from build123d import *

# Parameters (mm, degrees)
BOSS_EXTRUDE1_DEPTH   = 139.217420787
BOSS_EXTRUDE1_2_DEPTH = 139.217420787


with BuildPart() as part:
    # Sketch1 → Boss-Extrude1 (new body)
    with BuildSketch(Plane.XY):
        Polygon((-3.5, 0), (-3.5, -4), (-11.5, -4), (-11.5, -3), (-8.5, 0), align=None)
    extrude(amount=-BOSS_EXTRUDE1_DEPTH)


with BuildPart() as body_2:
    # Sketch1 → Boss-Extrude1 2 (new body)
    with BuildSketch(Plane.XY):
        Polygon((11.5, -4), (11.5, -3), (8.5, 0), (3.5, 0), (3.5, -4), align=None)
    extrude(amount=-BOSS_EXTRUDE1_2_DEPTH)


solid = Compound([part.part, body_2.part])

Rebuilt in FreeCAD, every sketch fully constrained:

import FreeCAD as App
import Part
import Sketcher
Q = App.Units.Quantity

doc = App.newDocument("Part")
params = doc.addObject("Spreadsheet::Sheet", "Params")
for row, (alias, value) in enumerate([
    ("sketch1_width", "5 mm"),
    ("sketch1_width2", "8 mm"),
    ("sketch1_height", "4 mm"),
    ("sketch1_height2", "1 mm"),
    ("pad1_length", "139.217421 mm"),
    ("sketch2_width", "5 mm"),
    ("sketch2_width2", "8 mm"),
    ("sketch2_height", "1 mm"),
    ("sketch2_height2", "4 mm"),
    ("pad2_length", "139.217421 mm"),
], start=1):
    params.set(f"A{row}", alias)
    params.set(f"B{row}", "=" + value)
    params.setAlias(f"B{row}", alias)

body = doc.addObject("PartDesign::Body", "Body")

# Sketch on XY plane
sketch1 = doc.addObject("Sketcher::SketchObject", "Sketch")
body.addObject(sketch1)
sketch1.AttachmentSupport = (doc.XY_Plane, [""])
sketch1.MapMode = "FlatFace"
sketch1.addGeometry([
    Part.LineSegment(App.Vector(-3.5, -4, 0), App.Vector(-3.5, 0, 0)),  # 0
    Part.LineSegment(App.Vector(-3.5, 0, 0), App.Vector(-8.5, 0, 0)),  # 1
    Part.LineSegment(App.Vector(-8.5, 0, 0), App.Vector(-11.5, -3, 0)),  # 2
    Part.LineSegment(App.Vector(-11.5, -3, 0), App.Vector(-11.5, -4, 0)),  # 3
    Part.LineSegment(App.Vector(-11.5, -4, 0), App.Vector(-3.5, -4, 0)),  # 4
], False)
sketch1.addConstraint([
    Sketcher.Constraint("Coincident", 0, 2, 1, 1),
    Sketcher.Constraint("Coincident", 1, 2, 2, 1),
    Sketcher.Constraint("Coincident", 2, 2, 3, 1),
    Sketcher.Constraint("Coincident", 3, 2, 4, 1),
    Sketcher.Constraint("Coincident", 4, 2, 0, 1),
    Sketcher.Constraint("Vertical", 0),
    Sketcher.Constraint("Horizontal", 1),
    Sketcher.Constraint("Vertical", 3),
    Sketcher.Constraint("Horizontal", 4),
    Sketcher.Constraint("PointOnObject", 0, 2, -1),
    Sketcher.Constraint("DistanceX", 1, 2, 1, 1, Q("5 mm")),
    Sketcher.Constraint("DistanceX", 4, 1, 4, 2, Q("8 mm")),
    Sketcher.Constraint("DistanceY", 0, 1, 0, 2, Q("4 mm")),
    Sketcher.Constraint("DistanceY", 3, 2, 3, 1, Q("1 mm")),
    Sketcher.Constraint("DistanceX", 0, 2, -1, 1, Q("3.5 mm")),
])
sketch1.setExpression("Constraints[10]", "Params.sketch1_width")
sketch1.setExpression("Constraints[11]", "Params.sketch1_width2")
sketch1.setExpression("Constraints[12]", "Params.sketch1_height")
sketch1.setExpression("Constraints[13]", "Params.sketch1_height2")
pad1 = doc.addObject("PartDesign::Pad", "Pad")
body.addObject(pad1)
pad1.Profile = sketch1
pad1.setExpression("Length", "Params.pad1_length")
pad1.Reversed = True
body2 = doc.addObject("PartDesign::Body", "Body001")

# Sketch on XY plane
sketch2 = doc.addObject("Sketcher::SketchObject", "Sketch001")
body2.addObject(sketch2)
sketch2.AttachmentSupport = (doc.getObject("XY_Plane001"), [""])
sketch2.MapMode = "FlatFace"
sketch2.addGeometry([
    Part.LineSegment(App.Vector(11.5, -4, 0), App.Vector(11.5, -3, 0)),  # 0
    Part.LineSegment(App.Vector(11.5, -3, 0), App.Vector(8.5, 0, 0)),  # 1
    Part.LineSegment(App.Vector(8.5, 0, 0), App.Vector(3.5, 0, 0)),  # 2
    Part.LineSegment(App.Vector(3.5, 0, 0), App.Vector(3.5, -4, 0)),  # 3
    Part.LineSegment(App.Vector(3.5, -4, 0), App.Vector(11.5, -4, 0)),  # 4
], False)
sketch2.addConstraint([
    Sketcher.Constraint("Coincident", 0, 2, 1, 1),
    Sketcher.Constraint("Coincident", 1, 2, 2, 1),
    Sketcher.Constraint("Coincident", 2, 2, 3, 1),
    Sketcher.Constraint("Coincident", 3, 2, 4, 1),
    Sketcher.Constraint("Coincident", 4, 2, 0, 1),
    Sketcher.Constraint("Vertical", 0),
    Sketcher.Constraint("Horizontal", 2),
    Sketcher.Constraint("Vertical", 3),
    Sketcher.Constraint("Horizontal", 4),
    Sketcher.Constraint("PointOnObject", 1, 2, -1),
    Sketcher.Constraint("DistanceX", 2, 2, 2, 1, Q("5 mm")),
    Sketcher.Constraint("DistanceX", 4, 1, 4, 2, Q("8 mm")),
    Sketcher.Constraint("DistanceY", 0, 1, 0, 2, Q("1 mm")),
    Sketcher.Constraint("DistanceY", 3, 2, 3, 1, Q("4 mm")),
    Sketcher.Constraint("DistanceX", -1, 1, 0, 2, Q("11.5 mm")),
])
sketch2.setExpression("Constraints[10]", "Params.sketch2_width")
sketch2.setExpression("Constraints[11]", "Params.sketch2_width2")
sketch2.setExpression("Constraints[12]", "Params.sketch2_height")
sketch2.setExpression("Constraints[13]", "Params.sketch2_height2")
pad2 = doc.addObject("PartDesign::Pad", "Pad001")
body2.addObject(pad2)
pad2.Profile = sketch2
pad2.setExpression("Length", "Params.pad2_length")
pad2.Reversed = True

doc.recompute()
